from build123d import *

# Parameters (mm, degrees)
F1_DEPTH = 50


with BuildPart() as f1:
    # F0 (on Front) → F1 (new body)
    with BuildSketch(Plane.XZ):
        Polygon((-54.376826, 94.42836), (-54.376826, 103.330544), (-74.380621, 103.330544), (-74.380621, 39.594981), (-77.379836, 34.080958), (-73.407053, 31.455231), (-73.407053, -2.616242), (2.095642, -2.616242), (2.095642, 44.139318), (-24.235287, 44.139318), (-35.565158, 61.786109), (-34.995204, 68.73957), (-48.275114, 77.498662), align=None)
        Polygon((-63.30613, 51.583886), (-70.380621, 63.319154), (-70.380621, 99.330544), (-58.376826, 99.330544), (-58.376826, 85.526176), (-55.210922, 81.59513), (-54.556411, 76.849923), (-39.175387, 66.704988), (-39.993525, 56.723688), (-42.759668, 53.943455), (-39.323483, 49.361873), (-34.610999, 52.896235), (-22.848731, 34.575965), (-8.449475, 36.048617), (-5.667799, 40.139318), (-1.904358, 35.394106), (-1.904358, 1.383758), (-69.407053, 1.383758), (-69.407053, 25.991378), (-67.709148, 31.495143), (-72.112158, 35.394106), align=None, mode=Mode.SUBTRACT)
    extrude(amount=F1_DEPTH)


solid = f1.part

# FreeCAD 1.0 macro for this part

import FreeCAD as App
import Part
import Sketcher
from FreeCAD import Vector
Q = App.Units.Quantity


def add_polygon(sketch, points):
    """Adds a closed chain of lines whose ends are joined by coincident constraints."""
    first, n = sketch.GeometryCount, len(points)
    for a, b in zip(points, points[1:] + points[:1]):
        sketch.addGeometry(Part.LineSegment(App.Vector(*a, 0), App.Vector(*b, 0)), False)
    for i in range(n):
        sketch.addConstraint(Sketcher.Constraint("Coincident", first + i, 2, first + (i + 1) % n, 1))

doc = App.newDocument("Part")
params = doc.addObject("Spreadsheet::Sheet", "Params")
for row, (alias, value) in enumerate([
    ("pad1_length", "50 mm"),
], start=1):
    params.set(f"A{row}", alias)
    params.set(f"B{row}", "=" + value)
    params.setAlias(f"B{row}", alias)

body = doc.addObject("PartDesign::Body", "Body")

# Sketch on XZ plane
sketch1 = doc.addObject("Sketcher::SketchObject", "Sketch")
body.addObject(sketch1)
sketch1.AttachmentSupport = (doc.XZ_Plane, [""])
sketch1.MapMode = "FlatFace"
add_polygon(sketch1, [(-54.4, 94.4), (-54.4, 103.3), (-74.4, 103.3), (-74.4, 39.6), (-77.4, 34.1), (-73.4, 31.5), (-73.4, -2.6), (2.1, -2.6), (2.1, 44.1), (-24.2, 44.1), (-35.6, 61.8), (-35, 68.7), (-48.3, 77.5)])  # lines 0-12
add_polygon(sketch1, [(-72.1, 35.4), (-63.3, 51.6), (-70.4, 63.3), (-70.4, 99.3), (-58.4, 99.3), (-58.4, 85.5), (-55.2, 81.6), (-54.6, 76.8), (-39.2, 66.7), (-40, 56.7), (-42.8, 53.9), (-39.3, 49.4), (-34.6, 52.9), (-22.8, 34.6), (-8.4, 36), (-5.7, 40.1), (-1.9, 35.4), (-1.9, 1.4), (-69.4, 1.4), (-69.4, 26), (-67.7, 31.5)])  # lines 13-33
sketch1.addConstraint([
    Sketcher.Constraint("Vertical", 0),
    Sketcher.Constraint("Horizontal", 1),
    Sketcher.Constraint("Vertical", 2),
    Sketcher.Constraint("Vertical", 5),
    Sketcher.Constraint("Horizontal", 6),
    Sketcher.Constraint("Vertical", 7),
    Sketcher.Constraint("Horizontal", 8),
    Sketcher.Constraint("Vertical", 15),
    Sketcher.Constraint("Horizontal", 16),
    Sketcher.Constraint("Vertical", 17),
    Sketcher.Constraint("Vertical", 29),
    Sketcher.Constraint("Horizontal", 30),
    Sketcher.Constraint("Vertical", 31),
    Sketcher.Constraint("Parallel", 3, 13),
    Sketcher.Constraint("Parallel", 11, 20),
    Sketcher.Constraint("Parallel", 10, 21),
    Sketcher.Constraint("Perpendicular", 23, 24),
    Sketcher.Constraint("Parallel", 9, 25),
    Sketcher.Constraint("Horizontal", 28, 2, 33, 2),
    Sketcher.Constraint("DistanceX", 2, 2, 14, 2, Q("4 mm")),
    Sketcher.Constraint("DistanceY", 15, 2, 1, 2, Q("4 mm")),
    Sketcher.Constraint("DistanceX", 16, 2, 0, 2, Q("4 mm")),
    Sketcher.Constraint("DistanceY", 27, 2, 7, 2, Q("4 mm")),
    Sketcher.Constraint("DistanceX", 28, 2, 7, 2, Q("4 mm")),
    Sketcher.Constraint("DistanceY", 6, 2, 29, 2, Q("4 mm")),
    Sketcher.Constraint("DistanceX", 5, 2, 30, 2, Q("4 mm")),
    Sketcher.Constraint("DistanceX", 24, 2, -1, 1, Q("34.610999 mm")),
    Sketcher.Constraint("DistanceX", 8, 2, 8, 1, Q("26.330929 mm")),
    Sketcher.Constraint("DistanceY", 7, 1, 7, 2, Q("46.75556 mm")),
    Sketcher.Constraint("DistanceY", 15, 1, 15, 2, Q("36.01139 mm")),
    Sketcher.Constraint("DistanceY", 31, 1, 31, 2, Q("24.60762 mm")),
    Sketcher.Constraint("DistanceX", 27, 2, -1, 1, Q("5.667799 mm")),
    Sketcher.Constraint("DistanceY", 5, 2, 3, 2, Q("36.6972 mm")),
    Sketcher.Constraint("DistanceX", 9, 2, 7, 2, Q("37.6608 mm")),
    Sketcher.Constraint("DistanceY", 11, 2, 12, 2, Q("16.929698 mm")),
    Sketcher.Constraint("DistanceY", 21, 2, 20, 2, Q("9.9813 mm")),
    Sketcher.Constraint("DistanceY", 26, 2, 7, 2, Q("8.090701 mm")),
    Sketcher.Constraint("Distance", 3, Q("6.276921 mm")),
    Sketcher.Constraint("Distance", 9, Q("20.970818 mm")),
    Sketcher.Constraint("Distance", 10, Q("6.976781 mm")),
    Sketcher.Constraint("Distance", 12, Q("17.99571 mm")),
    Sketcher.Constraint("Distance", 33, Q("5.881191 mm")),
    Sketcher.Constraint("DistanceX", 1, 2, 1, 1, Q("20.003795 mm")),
    Sketcher.Constraint("DistanceX", 6, 1, 6, 2, Q("75.502695 mm")),
    Sketcher.Constraint("DistanceY", 0, 1, 0, 2, Q("8.902184 mm")),
    Sketcher.Constraint("DistanceY", 2, 2, 2, 1, Q("63.735563 mm")),
    Sketcher.Constraint("DistanceY", 5, 2, 5, 1, Q("34.071473 mm")),
    Sketcher.Constraint("DistanceY", 17, 2, 17, 1, Q("13.804368 mm")),
    Sketcher.Constraint("DistanceY", 29, 2, 29, 1, Q("34.010348 mm")),
    Sketcher.Constraint("DistanceX", 1, 2, -1, 1, Q("74.380621 mm")),
    Sketcher.Constraint("DistanceY", -1, 1, 2, 2, Q("39.594981 mm")),
    Sketcher.Constraint("DistanceY", -1, 1, 3, 2, Q("34.080958 mm")),
    Sketcher.Constraint("DistanceX", -1, 1, 6, 2, Q("2.095642 mm")),
    Sketcher.Constraint("DistanceY", -1, 1, 10, 2, Q("68.73957 mm")),
    Sketcher.Constraint("DistanceX", 13, 2, -1, 1, Q("63.30613 mm")),
    Sketcher.Constraint("DistanceX", 18, 2, -1, 1, Q("55.210922 mm")),
    Sketcher.Constraint("DistanceY", -1, 1, 18, 2, Q("81.59513 mm")),
    Sketcher.Constraint("DistanceX", 19, 2, -1, 1, Q("54.556411 mm")),
    Sketcher.Constraint("DistanceY", -1, 1, 20, 2, Q("66.704988 mm")),
    Sketcher.Constraint("DistanceX", 25, 2, -1, 1, Q("22.848731 mm")),
    Sketcher.Constraint("DistanceX", 32, 2, -1, 1, Q("67.709148 mm")),
    Sketcher.Constraint("DistanceY", 19, 2, 11, 2, Q("0.648739 mm")),
    Sketcher.Constraint("DistanceX", 22, 2, 9, 2, Q("7.19451 mm")),
    Sketcher.Constraint("DistanceY", 13, 2, 22, 2, Q("2.359569 mm")),
    Sketcher.Constraint("DistanceY", 23, 2, 22, 2, Q("4.581582 mm")),
    Sketcher.Constraint("DistanceX", 21, 2, 23, 2, Q("0.670042 mm")),
    Sketcher.Constraint("DistanceX", 23, 2, 26, 2, Q("30.874008 mm")),
    Sketcher.Constraint("DistanceY", 25, 2, 28, 2, Q("0.818141 mm")),
])
pad1 = doc.addObject("PartDesign::Pad", "Pad")
body.addObject(pad1)
pad1.Profile = sketch1
pad1.setExpression("Length", "Params.pad1_length")

doc.recompute()
